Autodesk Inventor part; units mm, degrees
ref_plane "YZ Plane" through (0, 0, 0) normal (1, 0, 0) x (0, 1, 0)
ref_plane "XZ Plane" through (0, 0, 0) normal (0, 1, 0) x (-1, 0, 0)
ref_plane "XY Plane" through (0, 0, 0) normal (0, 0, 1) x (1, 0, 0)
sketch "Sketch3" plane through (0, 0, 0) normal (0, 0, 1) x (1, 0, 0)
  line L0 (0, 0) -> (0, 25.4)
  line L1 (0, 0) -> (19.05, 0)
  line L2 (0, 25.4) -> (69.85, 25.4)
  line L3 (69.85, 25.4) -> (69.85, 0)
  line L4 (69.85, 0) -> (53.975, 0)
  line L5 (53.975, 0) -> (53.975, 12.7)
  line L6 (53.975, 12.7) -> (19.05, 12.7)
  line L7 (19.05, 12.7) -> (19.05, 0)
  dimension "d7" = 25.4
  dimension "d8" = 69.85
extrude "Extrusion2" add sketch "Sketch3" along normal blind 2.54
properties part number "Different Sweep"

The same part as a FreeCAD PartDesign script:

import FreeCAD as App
import Part
import Sketcher

V = App.Vector
Q = App.Units.Quantity


def add_polygon(sketch, points):
    """Adds a closed chain of lines whose ends are joined by coincident constraints."""
    first, n = sketch.GeometryCount, len(points)
    for a, b in zip(points, points[1:] + points[:1]):
        sketch.addGeometry(Part.LineSegment(App.Vector(*a, 0), App.Vector(*b, 0)), False)
    for i in range(n):
        sketch.addConstraint(Sketcher.Constraint("Coincident", first + i, 2, first + (i + 1) % n, 1))

doc = App.newDocument("Part")
body = doc.addObject("PartDesign::Body", "Body")

# Sketch on XY plane
sketch1 = doc.addObject("Sketcher::SketchObject", "Sketch")
body.addObject(sketch1)
sketch1.AttachmentSupport = (doc.XY_Plane, [""])
sketch1.MapMode = "FlatFace"
add_polygon(sketch1, [(0, 25.4), (0, 0), (19.05, 0), (19.05, 12.7), (53.975, 12.7), (53.975, 0), (69.85, 0), (69.85, 25.4)])  # lines 0-7
sketch1.addConstraint(Sketcher.Constraint("Vertical", 0))
sketch1.addConstraint(Sketcher.Constraint("Horizontal", 1))
sketch1.addConstraint(Sketcher.Constraint("Vertical", 2))
sketch1.addConstraint(Sketcher.Constraint("Horizontal", 3))
sketch1.addConstraint(Sketcher.Constraint("Vertical", 4))
sketch1.addConstraint(Sketcher.Constraint("Horizontal", 5))
sketch1.addConstraint(Sketcher.Constraint("Vertical", 6))
sketch1.addConstraint(Sketcher.Constraint("Horizontal", 7))
sketch1.addConstraint(Sketcher.Constraint("Coincident", 0, 2, -1, 1))
sketch1.addConstraint(Sketcher.Constraint("PointOnObject", 4, 2, -1))
sketch1.addConstraint(Sketcher.Constraint("DistanceY", 0, 2, 0, 1, Q("1 in")))
sketch1.addConstraint(Sketcher.Constraint("DistanceX", 7, 2, 7, 1, Q("2.75 in")))
sketch1.addConstraint(Sketcher.Constraint("DistanceY", 2, 1, 2, 2, Q("0.5 in")))
sketch1.addConstraint(Sketcher.Constraint("DistanceX", 1, 2, 5, 2, Q("2 in")))
sketch1.addConstraint(Sketcher.Constraint("DistanceX", 3, 1, 3, 2, Q("1.375 in")))
pad1 = doc.addObject("PartDesign::Pad", "Pad")
body.addObject(pad1)
pad1.Profile = sketch1
pad1.Length = Q("0.1 in")

doc.recompute()
